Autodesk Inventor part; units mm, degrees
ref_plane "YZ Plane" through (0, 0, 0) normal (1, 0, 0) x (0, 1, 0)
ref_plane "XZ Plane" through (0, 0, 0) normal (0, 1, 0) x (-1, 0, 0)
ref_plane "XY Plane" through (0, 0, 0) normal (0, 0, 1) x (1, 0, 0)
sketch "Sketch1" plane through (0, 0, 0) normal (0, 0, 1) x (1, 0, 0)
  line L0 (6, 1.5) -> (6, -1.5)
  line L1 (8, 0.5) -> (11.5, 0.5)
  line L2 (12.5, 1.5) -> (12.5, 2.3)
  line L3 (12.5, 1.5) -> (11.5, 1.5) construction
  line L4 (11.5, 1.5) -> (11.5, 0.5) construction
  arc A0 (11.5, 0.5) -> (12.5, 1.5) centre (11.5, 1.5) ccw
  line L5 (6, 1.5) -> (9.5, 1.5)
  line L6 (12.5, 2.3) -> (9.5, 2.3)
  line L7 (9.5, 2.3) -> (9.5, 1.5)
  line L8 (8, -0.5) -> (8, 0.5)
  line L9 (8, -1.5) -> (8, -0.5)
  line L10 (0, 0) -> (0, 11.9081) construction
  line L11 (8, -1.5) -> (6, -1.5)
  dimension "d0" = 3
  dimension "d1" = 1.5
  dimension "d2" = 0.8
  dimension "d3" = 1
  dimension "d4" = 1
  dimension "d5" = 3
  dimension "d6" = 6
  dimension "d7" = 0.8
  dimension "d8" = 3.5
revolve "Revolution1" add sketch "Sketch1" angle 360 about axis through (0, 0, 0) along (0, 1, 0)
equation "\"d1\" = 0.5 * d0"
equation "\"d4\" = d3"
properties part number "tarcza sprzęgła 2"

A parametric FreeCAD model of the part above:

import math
import FreeCAD as App
import Part
import Sketcher
from FreeCAD import Vector
Q = App.Units.Quantity

doc = App.newDocument("Part")
params = doc.addObject("Spreadsheet::Sheet", "Params")
for row, (alias, value) in enumerate([
    ("sketch1_radius", "1 mm"),
    ("sketch1_width", "3 mm"),
    ("sketch1_width2", "3.5 mm"),
    ("sketch1_height", "0.8 mm"),
    ("revolution_angle", "360 deg"),
], start=1):
    params.set(f"A{row}", alias)
    params.set(f"B{row}", "=" + value)
    params.setAlias(f"B{row}", alias)

body = doc.addObject("PartDesign::Body", "Body")

# Sketch on XY plane
sketch1 = doc.addObject("Sketcher::SketchObject", "Sketch")
body.addObject(sketch1)
sketch1.AttachmentSupport = (doc.XY_Plane, [""])
sketch1.MapMode = "FlatFace"
sketch1.addGeometry([
    Part.LineSegment(Vector(9.5, 1.5, 0), Vector(6, 1.5, 0)),  # 0
    Part.LineSegment(Vector(6, 1.5, 0), Vector(6, -1.5, 0)),  # 1
    Part.LineSegment(Vector(6, -1.5, 0), Vector(8, -1.5, 0)),  # 2
    Part.LineSegment(Vector(8, -1.5, 0), Vector(8, 0.5, 0)),  # 3
    Part.LineSegment(Vector(8, 0.5, 0), Vector(11.5, 0.5, 0)),  # 4
    Part.ArcOfCircle(Part.Circle(Vector(11.5, 1.5, 0), Vector(0, 0, 1), 1), math.radians(-90), math.radians(0)),  # 5
    Part.LineSegment(Vector(12.5, 1.5, 0), Vector(12.5, 2.3, 0)),  # 6
    Part.LineSegment(Vector(12.5, 2.3, 0), Vector(9.5, 2.3, 0)),  # 7
    Part.LineSegment(Vector(9.5, 2.3, 0), Vector(9.5, 1.5, 0)),  # 8
], False)
sketch1.addConstraint([
    Sketcher.Constraint("Coincident", 0, 2, 1, 1),
    Sketcher.Constraint("Coincident", 1, 2, 2, 1),
    Sketcher.Constraint("Coincident", 2, 2, 3, 1),
    Sketcher.Constraint("Coincident", 3, 2, 4, 1),
    Sketcher.Constraint("Tangent", 4, 2, 5, 1),
    Sketcher.Constraint("Tangent", 5, 2, 6, 1),
    Sketcher.Constraint("Coincident", 6, 2, 7, 1),
    Sketcher.Constraint("Coincident", 7, 2, 8, 1),
    Sketcher.Constraint("Coincident", 8, 2, 0, 1),
    Sketcher.Constraint("Horizontal", 0),
    Sketcher.Constraint("Vertical", 1),
    Sketcher.Constraint("Horizontal", 2),
    Sketcher.Constraint("Vertical", 3),
    Sketcher.Constraint("Horizontal", 4),
    Sketcher.Constraint("Vertical", 6),
    Sketcher.Constraint("Horizontal", 7),
    Sketcher.Constraint("Vertical", 8),
    Sketcher.Constraint("Horizontal", 5, 3, 0, 2),
    Sketcher.Constraint("Equal", 0, 4),
    Sketcher.Constraint("Equal", 7, 1),
    Sketcher.Constraint("Radius", 5, Q("1 mm")),
    Sketcher.Constraint("DistanceX", 7, 2, 7, 1, Q("3 mm")),
    Sketcher.Constraint("DistanceX", 0, 2, 0, 1, Q("3.5 mm")),
    Sketcher.Constraint("DistanceY", 6, 1, 6, 2, Q("0.8 mm")),
    Sketcher.Constraint("DistanceX", -1, 1, 0, 2, Q("6 mm")),
    Sketcher.Constraint("DistanceY", -1, 1, 5, 3, Q("1.5 mm")),
])
sketch1.setExpression("Constraints[20]", "Params.sketch1_radius")
sketch1.setExpression("Constraints[21]", "Params.sketch1_width")
sketch1.setExpression("Constraints[22]", "Params.sketch1_width2")
sketch1.setExpression("Constraints[23]", "Params.sketch1_height")
revolution = doc.addObject("PartDesign::Revolution", "Revolution")
body.addObject(revolution)
revolution.Profile = sketch1
revolution.ReferenceAxis = (sketch1, ["V_Axis"])
revolution.setExpression("Angle", "Params.revolution_angle")

doc.recompute()
